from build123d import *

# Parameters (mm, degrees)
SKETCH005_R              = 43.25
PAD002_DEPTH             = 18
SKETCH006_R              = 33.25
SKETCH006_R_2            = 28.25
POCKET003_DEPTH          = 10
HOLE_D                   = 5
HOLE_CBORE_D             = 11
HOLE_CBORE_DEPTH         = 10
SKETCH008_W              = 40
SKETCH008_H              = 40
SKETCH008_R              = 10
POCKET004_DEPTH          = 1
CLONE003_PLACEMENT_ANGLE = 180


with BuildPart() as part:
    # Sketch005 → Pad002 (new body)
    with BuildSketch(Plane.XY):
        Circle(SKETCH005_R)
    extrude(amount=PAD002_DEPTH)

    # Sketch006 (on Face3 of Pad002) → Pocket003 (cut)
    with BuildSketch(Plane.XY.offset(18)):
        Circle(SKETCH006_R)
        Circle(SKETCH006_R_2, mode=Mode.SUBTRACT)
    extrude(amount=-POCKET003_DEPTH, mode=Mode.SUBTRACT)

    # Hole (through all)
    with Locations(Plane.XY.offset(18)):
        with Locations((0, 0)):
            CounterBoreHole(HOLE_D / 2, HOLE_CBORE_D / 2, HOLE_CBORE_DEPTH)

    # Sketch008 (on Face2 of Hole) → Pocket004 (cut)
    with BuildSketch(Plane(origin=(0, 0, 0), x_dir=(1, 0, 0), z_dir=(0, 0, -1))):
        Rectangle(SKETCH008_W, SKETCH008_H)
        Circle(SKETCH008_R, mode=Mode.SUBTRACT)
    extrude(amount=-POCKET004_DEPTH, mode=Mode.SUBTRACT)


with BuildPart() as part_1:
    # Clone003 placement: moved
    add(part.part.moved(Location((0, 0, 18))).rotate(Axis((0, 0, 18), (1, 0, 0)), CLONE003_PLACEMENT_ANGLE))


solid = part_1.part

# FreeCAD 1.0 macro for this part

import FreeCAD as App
import Part
import Sketcher

doc = App.newDocument("Part")
body = doc.addObject("PartDesign::Body", "Body")

# Sketch on XY plane
sketch1 = doc.addObject("Sketcher::SketchObject", "Sketch")
body.addObject(sketch1)
sketch1.AttachmentSupport = (doc.XY_Plane, [""])
sketch1.MapMode = "FlatFace"
sketch1.addGeometry(Part.Circle(App.Vector(0, 0, 0), App.Vector(0, 0, 1), 43), False)
sketch1.addConstraint([
    Sketcher.Constraint("Coincident", 0, 3, -1, 1),
    Sketcher.Constraint("Diameter", 0, 86.5),
])
pad1 = doc.addObject("PartDesign::Pad", "Pad")
body.addObject(pad1)
pad1.Profile = sketch1
pad1.Length = 18

# Sketch on XY plane
sketch2 = doc.addObject("Sketcher::SketchObject", "Sketch001")
body.addObject(sketch2)
sketch2.AttachmentSupport = (doc.XY_Plane, [""])
sketch2.MapMode = "FlatFace"
sketch2.AttachmentOffset = App.Placement(App.Vector(0, 0, 18), App.Rotation())
sketch2.addGeometry([
    Part.Circle(App.Vector(0, 0, 0), App.Vector(0, 0, 1), 33),
    Part.Circle(App.Vector(0, 0, 0), App.Vector(0, 0, 1), 28),
], False)
sketch2.addConstraint([
    Sketcher.Constraint("Coincident", 0, 3, -1, 1),
    Sketcher.Constraint("Coincident", 1, 3, -1, 1),
    Sketcher.Constraint("Diameter", 0, 66.5),
    Sketcher.Constraint("Diameter", 1, 56.5),
])
pocket1 = doc.addObject("PartDesign::Pocket", "Pocket")
body.addObject(pocket1)
pocket1.Profile = sketch2
pocket1.Length = 10

# Sketch on XY plane
sketch3 = doc.addObject("Sketcher::SketchObject", "Sketch002")
body.addObject(sketch3)
sketch3.AttachmentSupport = (doc.XY_Plane, [""])
sketch3.MapMode = "FlatFace"
sketch3.AttachmentOffset = App.Placement(App.Vector(0, 0, 18), App.Rotation())
sketch3.addGeometry(Part.Circle(App.Vector(0, 0, 0), App.Vector(0, 0, 1), 2.5), False)
sketch3.addConstraint([
    Sketcher.Constraint("Coincident", 0, 3, -1, 1),
    Sketcher.Constraint("Diameter", 0, 5.0),
])
doc.recompute()
hole = doc.addObject("PartDesign::Hole", "Hole")
body.addObject(hole)
hole.Profile = sketch3
hole.ThreadType = "None"
hole.Diameter = 5
hole.DepthType = "ThroughAll"
hole.HoleCutType = "Counterbore"
hole.HoleCutDiameter = 11
hole.HoleCutDepth = 10

# Sketch on XY plane
sketch4 = doc.addObject("Sketcher::SketchObject", "Sketch003")
body.addObject(sketch4)
sketch4.AttachmentSupport = (doc.XY_Plane, [""])
sketch4.MapMode = "FlatFace"
sketch4.addGeometry([
    Part.LineSegment(App.Vector(-20, -20, 0), App.Vector(-20, 20, 0)),  # 0
    Part.LineSegment(App.Vector(-20, 20, 0), App.Vector(20, 20, 0)),  # 1
    Part.LineSegment(App.Vector(20, 20, 0), App.Vector(20, -20, 0)),  # 2
    Part.LineSegment(App.Vector(20, -20, 0), App.Vector(-20, -20, 0)),  # 3
    Part.Circle(App.Vector(0, 0, 0), App.Vector(0, 0, 1), 10),  # 4
], False)
sketch4.addConstraint([
    Sketcher.Constraint("Coincident", 0, 2, 1, 1),
    Sketcher.Constraint("Coincident", 1, 2, 2, 1),
    Sketcher.Constraint("Coincident", 2, 2, 3, 1),
    Sketcher.Constraint("Coincident", 3, 2, 0, 1),
    Sketcher.Constraint("Vertical", 0),
    Sketcher.Constraint("Horizontal", 1),
    Sketcher.Constraint("Vertical", 2),
    Sketcher.Constraint("Horizontal", 3),
    Sketcher.Constraint("Coincident", 4, 3, -1, 1),
    Sketcher.Constraint("Symmetric", 0, 2, 2, 2, -1, 1),
    Sketcher.Constraint("Equal", 3, 0),
    Sketcher.Constraint("Diameter", 4, 20.0),
    Sketcher.Constraint("DistanceX", 1, 1, 1, 2, 40.0),
])
pocket2 = doc.addObject("PartDesign::Pocket", "Pocket001")
body.addObject(pocket2)
pocket2.Profile = sketch4
pocket2.Length = 1
pocket2.Reversed = True
body2 = doc.addObject("PartDesign::Body", "Body001")
doc.recompute()

body.Placement = App.Placement(App.Vector(0, 0, 18), App.Rotation(App.Vector(1, 0, 0), 180))
boolean = doc.addObject("PartDesign::Boolean", "Boolean")
body2.addObject(boolean)
boolean.Type = "Fuse"
boolean.addObjects([body])

doc.recompute()
